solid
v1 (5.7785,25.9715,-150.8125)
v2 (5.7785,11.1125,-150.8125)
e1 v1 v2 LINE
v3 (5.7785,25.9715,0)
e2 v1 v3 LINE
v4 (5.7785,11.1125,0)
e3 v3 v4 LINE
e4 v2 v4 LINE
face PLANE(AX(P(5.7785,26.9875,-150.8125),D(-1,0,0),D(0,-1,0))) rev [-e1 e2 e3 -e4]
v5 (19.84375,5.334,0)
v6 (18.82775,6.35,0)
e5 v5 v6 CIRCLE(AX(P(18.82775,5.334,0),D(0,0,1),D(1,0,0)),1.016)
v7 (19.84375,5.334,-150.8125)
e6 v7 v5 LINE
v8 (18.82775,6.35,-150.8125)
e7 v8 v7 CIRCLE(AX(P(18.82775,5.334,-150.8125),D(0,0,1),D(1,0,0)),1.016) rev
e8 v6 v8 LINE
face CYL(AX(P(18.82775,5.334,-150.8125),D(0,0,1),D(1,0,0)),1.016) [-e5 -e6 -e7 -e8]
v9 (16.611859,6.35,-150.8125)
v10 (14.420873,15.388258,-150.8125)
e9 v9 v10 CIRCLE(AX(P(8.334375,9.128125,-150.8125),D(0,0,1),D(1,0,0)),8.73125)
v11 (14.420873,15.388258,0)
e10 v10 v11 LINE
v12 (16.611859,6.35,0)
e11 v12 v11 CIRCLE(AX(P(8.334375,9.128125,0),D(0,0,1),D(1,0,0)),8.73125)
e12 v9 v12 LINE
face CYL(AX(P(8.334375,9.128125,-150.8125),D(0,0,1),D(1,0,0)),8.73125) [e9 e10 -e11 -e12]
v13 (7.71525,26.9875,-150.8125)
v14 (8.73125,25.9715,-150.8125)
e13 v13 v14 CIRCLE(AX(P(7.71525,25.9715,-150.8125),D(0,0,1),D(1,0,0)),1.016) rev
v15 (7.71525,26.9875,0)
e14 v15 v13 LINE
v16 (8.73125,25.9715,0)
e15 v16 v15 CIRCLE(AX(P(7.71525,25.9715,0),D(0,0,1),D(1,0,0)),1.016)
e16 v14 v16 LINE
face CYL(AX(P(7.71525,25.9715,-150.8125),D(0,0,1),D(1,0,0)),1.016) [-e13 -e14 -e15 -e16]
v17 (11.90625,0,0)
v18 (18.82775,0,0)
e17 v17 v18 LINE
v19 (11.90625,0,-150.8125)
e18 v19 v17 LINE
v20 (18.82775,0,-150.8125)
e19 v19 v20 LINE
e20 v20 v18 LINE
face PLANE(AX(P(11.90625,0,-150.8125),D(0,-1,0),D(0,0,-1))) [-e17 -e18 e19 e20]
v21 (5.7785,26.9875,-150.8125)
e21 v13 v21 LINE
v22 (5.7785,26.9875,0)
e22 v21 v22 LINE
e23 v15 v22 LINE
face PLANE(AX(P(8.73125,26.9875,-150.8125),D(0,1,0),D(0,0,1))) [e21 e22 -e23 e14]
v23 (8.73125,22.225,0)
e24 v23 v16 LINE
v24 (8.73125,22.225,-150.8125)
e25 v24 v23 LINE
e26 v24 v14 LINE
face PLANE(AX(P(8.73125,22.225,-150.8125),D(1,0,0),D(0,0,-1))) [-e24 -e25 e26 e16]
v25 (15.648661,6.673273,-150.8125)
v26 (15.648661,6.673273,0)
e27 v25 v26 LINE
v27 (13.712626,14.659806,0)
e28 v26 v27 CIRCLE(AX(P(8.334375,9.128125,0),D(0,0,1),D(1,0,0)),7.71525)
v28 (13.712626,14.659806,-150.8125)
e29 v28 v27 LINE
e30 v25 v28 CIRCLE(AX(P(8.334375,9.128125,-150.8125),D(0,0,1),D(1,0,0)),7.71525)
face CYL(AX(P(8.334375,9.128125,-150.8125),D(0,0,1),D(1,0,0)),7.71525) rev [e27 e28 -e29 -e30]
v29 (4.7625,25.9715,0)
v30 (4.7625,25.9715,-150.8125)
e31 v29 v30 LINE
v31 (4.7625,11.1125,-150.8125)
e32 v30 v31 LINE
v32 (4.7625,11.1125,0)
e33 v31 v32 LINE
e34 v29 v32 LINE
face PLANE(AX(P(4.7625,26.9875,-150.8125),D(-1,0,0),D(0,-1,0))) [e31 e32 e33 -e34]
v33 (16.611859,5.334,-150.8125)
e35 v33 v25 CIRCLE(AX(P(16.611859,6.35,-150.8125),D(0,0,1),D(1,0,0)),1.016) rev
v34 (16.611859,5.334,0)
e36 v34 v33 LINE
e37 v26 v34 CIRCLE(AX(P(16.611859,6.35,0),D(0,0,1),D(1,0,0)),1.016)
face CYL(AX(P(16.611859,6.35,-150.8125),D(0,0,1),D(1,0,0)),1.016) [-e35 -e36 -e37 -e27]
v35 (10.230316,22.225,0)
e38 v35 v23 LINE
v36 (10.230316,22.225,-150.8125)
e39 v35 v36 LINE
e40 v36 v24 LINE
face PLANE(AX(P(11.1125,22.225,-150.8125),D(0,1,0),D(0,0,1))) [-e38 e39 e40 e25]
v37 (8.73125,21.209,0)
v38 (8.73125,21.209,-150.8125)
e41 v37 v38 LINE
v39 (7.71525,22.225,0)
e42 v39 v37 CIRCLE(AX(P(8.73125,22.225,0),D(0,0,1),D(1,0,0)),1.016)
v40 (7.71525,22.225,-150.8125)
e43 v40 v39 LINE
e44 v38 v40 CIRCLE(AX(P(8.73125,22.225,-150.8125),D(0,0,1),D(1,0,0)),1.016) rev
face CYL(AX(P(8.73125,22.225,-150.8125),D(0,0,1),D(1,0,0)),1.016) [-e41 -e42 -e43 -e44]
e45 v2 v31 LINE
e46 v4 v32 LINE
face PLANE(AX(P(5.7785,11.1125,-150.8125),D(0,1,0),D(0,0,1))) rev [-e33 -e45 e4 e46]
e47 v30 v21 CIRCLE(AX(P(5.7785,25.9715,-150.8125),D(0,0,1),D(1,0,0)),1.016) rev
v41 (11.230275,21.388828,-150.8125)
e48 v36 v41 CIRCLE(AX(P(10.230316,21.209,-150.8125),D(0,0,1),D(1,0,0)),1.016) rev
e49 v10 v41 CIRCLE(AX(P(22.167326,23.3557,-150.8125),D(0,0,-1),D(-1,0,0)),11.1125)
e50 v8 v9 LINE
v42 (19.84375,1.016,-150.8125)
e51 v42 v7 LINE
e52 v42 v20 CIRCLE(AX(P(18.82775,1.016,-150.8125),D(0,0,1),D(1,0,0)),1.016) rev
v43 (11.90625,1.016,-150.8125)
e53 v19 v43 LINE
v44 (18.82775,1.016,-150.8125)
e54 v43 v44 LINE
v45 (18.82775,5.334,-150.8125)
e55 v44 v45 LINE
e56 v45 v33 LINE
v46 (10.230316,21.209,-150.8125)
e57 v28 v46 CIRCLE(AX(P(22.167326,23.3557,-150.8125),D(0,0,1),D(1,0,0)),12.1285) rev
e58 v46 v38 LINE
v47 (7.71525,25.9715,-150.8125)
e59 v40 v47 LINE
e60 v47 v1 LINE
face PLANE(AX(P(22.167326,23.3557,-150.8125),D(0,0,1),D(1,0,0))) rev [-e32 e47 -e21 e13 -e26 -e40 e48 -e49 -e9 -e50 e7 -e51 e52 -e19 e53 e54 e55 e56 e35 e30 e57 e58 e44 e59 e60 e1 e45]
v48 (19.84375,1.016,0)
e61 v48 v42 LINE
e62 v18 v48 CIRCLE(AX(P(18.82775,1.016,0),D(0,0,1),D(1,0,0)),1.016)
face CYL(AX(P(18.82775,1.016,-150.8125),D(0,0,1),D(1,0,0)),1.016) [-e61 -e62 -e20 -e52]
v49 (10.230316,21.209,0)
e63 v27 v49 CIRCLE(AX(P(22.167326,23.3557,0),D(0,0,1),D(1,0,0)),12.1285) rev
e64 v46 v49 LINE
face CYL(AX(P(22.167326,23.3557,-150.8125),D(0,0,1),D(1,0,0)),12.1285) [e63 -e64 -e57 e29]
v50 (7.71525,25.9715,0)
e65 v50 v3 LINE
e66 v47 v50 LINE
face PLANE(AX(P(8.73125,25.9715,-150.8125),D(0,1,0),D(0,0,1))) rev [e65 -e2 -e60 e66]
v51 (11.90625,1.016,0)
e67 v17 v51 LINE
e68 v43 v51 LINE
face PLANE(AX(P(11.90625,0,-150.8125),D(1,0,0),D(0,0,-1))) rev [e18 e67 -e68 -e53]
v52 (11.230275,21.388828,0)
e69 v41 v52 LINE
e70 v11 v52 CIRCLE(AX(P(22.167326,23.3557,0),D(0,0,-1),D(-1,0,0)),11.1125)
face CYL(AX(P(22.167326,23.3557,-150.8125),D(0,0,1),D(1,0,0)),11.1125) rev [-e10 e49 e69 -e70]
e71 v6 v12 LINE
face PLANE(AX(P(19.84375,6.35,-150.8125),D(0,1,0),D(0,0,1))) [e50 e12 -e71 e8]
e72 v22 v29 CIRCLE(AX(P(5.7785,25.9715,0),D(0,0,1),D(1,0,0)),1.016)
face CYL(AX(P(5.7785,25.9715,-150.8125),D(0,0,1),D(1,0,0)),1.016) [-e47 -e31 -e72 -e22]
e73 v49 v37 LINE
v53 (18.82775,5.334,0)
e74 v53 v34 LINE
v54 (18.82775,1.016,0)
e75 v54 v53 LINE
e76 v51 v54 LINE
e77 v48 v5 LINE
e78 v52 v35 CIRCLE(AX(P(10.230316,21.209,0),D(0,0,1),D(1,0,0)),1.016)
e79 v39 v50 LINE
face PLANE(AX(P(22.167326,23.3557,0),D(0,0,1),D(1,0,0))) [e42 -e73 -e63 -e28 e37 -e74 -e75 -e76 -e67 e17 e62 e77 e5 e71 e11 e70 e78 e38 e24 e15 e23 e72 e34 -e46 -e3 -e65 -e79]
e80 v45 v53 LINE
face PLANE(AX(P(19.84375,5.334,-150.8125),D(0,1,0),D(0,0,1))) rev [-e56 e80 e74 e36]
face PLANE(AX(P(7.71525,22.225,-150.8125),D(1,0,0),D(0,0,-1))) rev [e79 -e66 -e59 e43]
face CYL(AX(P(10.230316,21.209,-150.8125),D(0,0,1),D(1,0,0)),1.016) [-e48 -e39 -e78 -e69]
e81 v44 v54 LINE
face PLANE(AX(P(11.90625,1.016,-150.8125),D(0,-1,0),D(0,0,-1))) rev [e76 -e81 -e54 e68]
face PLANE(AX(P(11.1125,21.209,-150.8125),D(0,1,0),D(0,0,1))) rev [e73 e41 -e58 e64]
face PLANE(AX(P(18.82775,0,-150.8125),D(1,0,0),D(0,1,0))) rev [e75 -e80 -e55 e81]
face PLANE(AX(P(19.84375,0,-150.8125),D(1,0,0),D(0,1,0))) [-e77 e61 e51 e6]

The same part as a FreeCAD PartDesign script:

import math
import FreeCAD as App
import Part
import Sketcher
Q = App.Units.Quantity


def edges_at(feature, points):
    """Names of the edges that pass closest to the given points."""
    edges = feature.Shape.Edges
    near = lambda p: min(range(len(edges)), key=lambda i: edges[i].distToShape(Part.Vertex(*p))[0])
    return sorted({f"Edge{near(p) + 1}" for p in points})

doc = App.newDocument("Part")
body = doc.addObject("PartDesign::Body", "Body")

sketch1 = body.newObject("Sketcher::SketchObject", "Sketch")
sketch1.AttachmentSupport = (doc.getObject("XY_Plane"), [""])
sketch1.MapMode = "FlatFace"
sketch1.addGeometry([
    Part.LineSegment(App.Vector(11.9, 0, 0), App.Vector(19.8, 0, 0)),
    Part.LineSegment(App.Vector(19.8, 0, 0), App.Vector(19.8, 6.3, 0)),
    Part.LineSegment(App.Vector(19.8, 6.3, 0), App.Vector(16.6, 6.3, 0)),
    Part.ArcOfCircle(Part.Circle(App.Vector(8.3, 9.1, 0), App.Vector(0, 0, 1), 8.7), math.radians(-19), math.radians(46)),
    Part.ArcOfCircle(Part.Circle(App.Vector(22.2, 23.4, 0), App.Vector(0, 0, 1), 11.1), math.radians(-174), math.radians(-134)),
    Part.LineSegment(App.Vector(11.1, 22.2, 0), App.Vector(8.7, 22.2, 0)),
    Part.LineSegment(App.Vector(8.7, 22.2, 0), App.Vector(8.7, 27, 0)),
    Part.LineSegment(App.Vector(8.7, 27, 0), App.Vector(4.8, 27, 0)),
    Part.LineSegment(App.Vector(4.8, 27, 0), App.Vector(4.8, 11.1, 0)),
    Part.LineSegment(App.Vector(4.8, 11.1, 0), App.Vector(5.8, 11.1, 0)),
    Part.LineSegment(App.Vector(5.8, 11.1, 0), App.Vector(5.8, 26, 0)),
    Part.LineSegment(App.Vector(5.8, 26, 0), App.Vector(7.7, 26, 0)),
    Part.LineSegment(App.Vector(7.7, 26, 0), App.Vector(7.7, 21.2, 0)),
    Part.LineSegment(App.Vector(7.7, 21.2, 0), App.Vector(10.2, 21.2, 0)),
    Part.ArcOfCircle(Part.Circle(App.Vector(22.2, 23.4, 0), App.Vector(0, 0, 1), 12.1), math.radians(-170), math.radians(-134)),
    Part.ArcOfCircle(Part.Circle(App.Vector(8.3, 9.1, 0), App.Vector(0, 0, 1), 7.7), math.radians(-29), math.radians(46)),
    Part.LineSegment(App.Vector(15.1, 5.3, 0), App.Vector(18.8, 5.3, 0)),
    Part.LineSegment(App.Vector(18.8, 5.3, 0), App.Vector(18.8, 1, 0)),
    Part.LineSegment(App.Vector(18.8, 1, 0), App.Vector(11.9, 1, 0)),
    Part.LineSegment(App.Vector(11.9, 1, 0), App.Vector(11.9, 0, 0)),
], False)
sketch1.addConstraint([
    Sketcher.Constraint("Coincident", 0, 2, 1, 1),
    Sketcher.Constraint("Coincident", 1, 2, 2, 1),
    Sketcher.Constraint("Coincident", 2, 2, 3, 1),
    Sketcher.Constraint("Tangent", 3, 2, 4, 2),
    Sketcher.Constraint("Coincident", 4, 1, 5, 1),
    Sketcher.Constraint("Coincident", 5, 2, 6, 1),
    Sketcher.Constraint("Coincident", 6, 2, 7, 1),
    Sketcher.Constraint("Coincident", 7, 2, 8, 1),
    Sketcher.Constraint("Coincident", 8, 2, 9, 1),
    Sketcher.Constraint("Coincident", 9, 2, 10, 1),
    Sketcher.Constraint("Coincident", 10, 2, 11, 1),
    Sketcher.Constraint("Coincident", 11, 2, 12, 1),
    Sketcher.Constraint("Coincident", 12, 2, 13, 1),
    Sketcher.Constraint("Coincident", 13, 2, 14, 1),
    Sketcher.Constraint("Tangent", 14, 2, 15, 2),
    Sketcher.Constraint("Coincident", 15, 1, 16, 1),
    Sketcher.Constraint("Coincident", 16, 2, 17, 1),
    Sketcher.Constraint("Coincident", 17, 2, 18, 1),
    Sketcher.Constraint("Coincident", 18, 2, 19, 1),
    Sketcher.Constraint("Coincident", 19, 2, 0, 1),
    Sketcher.Constraint("Horizontal", 0),
    Sketcher.Constraint("Vertical", 1),
    Sketcher.Constraint("Horizontal", 2),
    Sketcher.Constraint("Horizontal", 5),
    Sketcher.Constraint("Vertical", 6),
    Sketcher.Constraint("Horizontal", 7),
    Sketcher.Constraint("Vertical", 8),
    Sketcher.Constraint("Horizontal", 9),
    Sketcher.Constraint("Vertical", 10),
    Sketcher.Constraint("Horizontal", 11),
    Sketcher.Constraint("Vertical", 12),
    Sketcher.Constraint("Horizontal", 13),
    Sketcher.Constraint("Horizontal", 16),
    Sketcher.Constraint("Vertical", 17),
    Sketcher.Constraint("Horizontal", 18),
    Sketcher.Constraint("Vertical", 19),
    Sketcher.Constraint("Coincident", 14, 3, 4, 3),
    Sketcher.Constraint("Coincident", 15, 3, 3, 3),
    Sketcher.Constraint("PointOnObject", 0, 2, -1),
    Sketcher.Constraint("Equal", 6, 12),
    Sketcher.Constraint("Equal", 9, 19),
    Sketcher.Constraint("Radius", 3, Q("0.34375 in")),
    Sketcher.Constraint("Radius", 4, Q("0.4375 in")),
    Sketcher.Constraint("DistanceX", 9, 1, 9, 2, Q("0.04 in")),
    Sketcher.Constraint("DistanceY", 1, 1, 1, 2, Q("0.25 in")),
    Sketcher.Constraint("DistanceY", 17, 2, 17, 1, Q("0.17 in")),
    Sketcher.Constraint("Radius", 14, Q("0.4775 in")),
    Sketcher.Constraint("DistanceX", 0, 1, 0, 2, Q("0.3125 in")),
    Sketcher.Constraint("DistanceX", 5, 2, 5, 1, Q("0.09375 in")),
    Sketcher.Constraint("DistanceX", 7, 2, 7, 1, Q("0.15625 in")),
    Sketcher.Constraint("DistanceY", 6, 1, 6, 2, Q("0.1875 in")),
    Sketcher.Constraint("DistanceY", 8, 2, 8, 1, Q("0.625 in")),
    Sketcher.Constraint("DistanceY", 10, 1, 10, 2, Q("0.585 in")),
    Sketcher.Constraint("DistanceX", 11, 2, 6, 2, Q("0.04 in")),
    Sketcher.Constraint("DistanceX", 16, 2, 1, 2, Q("0.04 in")),
    Sketcher.Constraint("DistanceX", -1, 1, 3, 3, Q("0.328125 in")),
    Sketcher.Constraint("DistanceY", -1, 1, 3, 3, Q("0.359375 in")),
    Sketcher.Constraint("DistanceX", -1, 1, 0, 2, Q("0.78125 in")),
    Sketcher.Constraint("DistanceX", -1, 1, 4, 1, Q("0.4375 in")),
    Sketcher.Constraint("DistanceY", -1, 1, 4, 1, Q("0.875 in")),
])
pad1 = body.newObject("PartDesign::Pad", "Pad")
pad1.Profile = sketch1
pad1.Length = Q("5.9375 in")
pad1.Reversed = True
doc.recompute()

fillet = body.newObject("PartDesign::Fillet", "Fillet")
fillet.Base = (pad1, edges_at(pad1, [
    (4.763, 26.988, -75.406),
    (8.731, 26.988, -75.406),
    (11.113, 22.225, -75.406),
    (19.844, 6.35, -75.406),
    (19.844, 0, -75.406),
    (15.052, 5.334, -75.406),
    (7.715, 21.209, -75.406),
]))
fillet.Radius = Q("0.04 in")

doc.recompute()
